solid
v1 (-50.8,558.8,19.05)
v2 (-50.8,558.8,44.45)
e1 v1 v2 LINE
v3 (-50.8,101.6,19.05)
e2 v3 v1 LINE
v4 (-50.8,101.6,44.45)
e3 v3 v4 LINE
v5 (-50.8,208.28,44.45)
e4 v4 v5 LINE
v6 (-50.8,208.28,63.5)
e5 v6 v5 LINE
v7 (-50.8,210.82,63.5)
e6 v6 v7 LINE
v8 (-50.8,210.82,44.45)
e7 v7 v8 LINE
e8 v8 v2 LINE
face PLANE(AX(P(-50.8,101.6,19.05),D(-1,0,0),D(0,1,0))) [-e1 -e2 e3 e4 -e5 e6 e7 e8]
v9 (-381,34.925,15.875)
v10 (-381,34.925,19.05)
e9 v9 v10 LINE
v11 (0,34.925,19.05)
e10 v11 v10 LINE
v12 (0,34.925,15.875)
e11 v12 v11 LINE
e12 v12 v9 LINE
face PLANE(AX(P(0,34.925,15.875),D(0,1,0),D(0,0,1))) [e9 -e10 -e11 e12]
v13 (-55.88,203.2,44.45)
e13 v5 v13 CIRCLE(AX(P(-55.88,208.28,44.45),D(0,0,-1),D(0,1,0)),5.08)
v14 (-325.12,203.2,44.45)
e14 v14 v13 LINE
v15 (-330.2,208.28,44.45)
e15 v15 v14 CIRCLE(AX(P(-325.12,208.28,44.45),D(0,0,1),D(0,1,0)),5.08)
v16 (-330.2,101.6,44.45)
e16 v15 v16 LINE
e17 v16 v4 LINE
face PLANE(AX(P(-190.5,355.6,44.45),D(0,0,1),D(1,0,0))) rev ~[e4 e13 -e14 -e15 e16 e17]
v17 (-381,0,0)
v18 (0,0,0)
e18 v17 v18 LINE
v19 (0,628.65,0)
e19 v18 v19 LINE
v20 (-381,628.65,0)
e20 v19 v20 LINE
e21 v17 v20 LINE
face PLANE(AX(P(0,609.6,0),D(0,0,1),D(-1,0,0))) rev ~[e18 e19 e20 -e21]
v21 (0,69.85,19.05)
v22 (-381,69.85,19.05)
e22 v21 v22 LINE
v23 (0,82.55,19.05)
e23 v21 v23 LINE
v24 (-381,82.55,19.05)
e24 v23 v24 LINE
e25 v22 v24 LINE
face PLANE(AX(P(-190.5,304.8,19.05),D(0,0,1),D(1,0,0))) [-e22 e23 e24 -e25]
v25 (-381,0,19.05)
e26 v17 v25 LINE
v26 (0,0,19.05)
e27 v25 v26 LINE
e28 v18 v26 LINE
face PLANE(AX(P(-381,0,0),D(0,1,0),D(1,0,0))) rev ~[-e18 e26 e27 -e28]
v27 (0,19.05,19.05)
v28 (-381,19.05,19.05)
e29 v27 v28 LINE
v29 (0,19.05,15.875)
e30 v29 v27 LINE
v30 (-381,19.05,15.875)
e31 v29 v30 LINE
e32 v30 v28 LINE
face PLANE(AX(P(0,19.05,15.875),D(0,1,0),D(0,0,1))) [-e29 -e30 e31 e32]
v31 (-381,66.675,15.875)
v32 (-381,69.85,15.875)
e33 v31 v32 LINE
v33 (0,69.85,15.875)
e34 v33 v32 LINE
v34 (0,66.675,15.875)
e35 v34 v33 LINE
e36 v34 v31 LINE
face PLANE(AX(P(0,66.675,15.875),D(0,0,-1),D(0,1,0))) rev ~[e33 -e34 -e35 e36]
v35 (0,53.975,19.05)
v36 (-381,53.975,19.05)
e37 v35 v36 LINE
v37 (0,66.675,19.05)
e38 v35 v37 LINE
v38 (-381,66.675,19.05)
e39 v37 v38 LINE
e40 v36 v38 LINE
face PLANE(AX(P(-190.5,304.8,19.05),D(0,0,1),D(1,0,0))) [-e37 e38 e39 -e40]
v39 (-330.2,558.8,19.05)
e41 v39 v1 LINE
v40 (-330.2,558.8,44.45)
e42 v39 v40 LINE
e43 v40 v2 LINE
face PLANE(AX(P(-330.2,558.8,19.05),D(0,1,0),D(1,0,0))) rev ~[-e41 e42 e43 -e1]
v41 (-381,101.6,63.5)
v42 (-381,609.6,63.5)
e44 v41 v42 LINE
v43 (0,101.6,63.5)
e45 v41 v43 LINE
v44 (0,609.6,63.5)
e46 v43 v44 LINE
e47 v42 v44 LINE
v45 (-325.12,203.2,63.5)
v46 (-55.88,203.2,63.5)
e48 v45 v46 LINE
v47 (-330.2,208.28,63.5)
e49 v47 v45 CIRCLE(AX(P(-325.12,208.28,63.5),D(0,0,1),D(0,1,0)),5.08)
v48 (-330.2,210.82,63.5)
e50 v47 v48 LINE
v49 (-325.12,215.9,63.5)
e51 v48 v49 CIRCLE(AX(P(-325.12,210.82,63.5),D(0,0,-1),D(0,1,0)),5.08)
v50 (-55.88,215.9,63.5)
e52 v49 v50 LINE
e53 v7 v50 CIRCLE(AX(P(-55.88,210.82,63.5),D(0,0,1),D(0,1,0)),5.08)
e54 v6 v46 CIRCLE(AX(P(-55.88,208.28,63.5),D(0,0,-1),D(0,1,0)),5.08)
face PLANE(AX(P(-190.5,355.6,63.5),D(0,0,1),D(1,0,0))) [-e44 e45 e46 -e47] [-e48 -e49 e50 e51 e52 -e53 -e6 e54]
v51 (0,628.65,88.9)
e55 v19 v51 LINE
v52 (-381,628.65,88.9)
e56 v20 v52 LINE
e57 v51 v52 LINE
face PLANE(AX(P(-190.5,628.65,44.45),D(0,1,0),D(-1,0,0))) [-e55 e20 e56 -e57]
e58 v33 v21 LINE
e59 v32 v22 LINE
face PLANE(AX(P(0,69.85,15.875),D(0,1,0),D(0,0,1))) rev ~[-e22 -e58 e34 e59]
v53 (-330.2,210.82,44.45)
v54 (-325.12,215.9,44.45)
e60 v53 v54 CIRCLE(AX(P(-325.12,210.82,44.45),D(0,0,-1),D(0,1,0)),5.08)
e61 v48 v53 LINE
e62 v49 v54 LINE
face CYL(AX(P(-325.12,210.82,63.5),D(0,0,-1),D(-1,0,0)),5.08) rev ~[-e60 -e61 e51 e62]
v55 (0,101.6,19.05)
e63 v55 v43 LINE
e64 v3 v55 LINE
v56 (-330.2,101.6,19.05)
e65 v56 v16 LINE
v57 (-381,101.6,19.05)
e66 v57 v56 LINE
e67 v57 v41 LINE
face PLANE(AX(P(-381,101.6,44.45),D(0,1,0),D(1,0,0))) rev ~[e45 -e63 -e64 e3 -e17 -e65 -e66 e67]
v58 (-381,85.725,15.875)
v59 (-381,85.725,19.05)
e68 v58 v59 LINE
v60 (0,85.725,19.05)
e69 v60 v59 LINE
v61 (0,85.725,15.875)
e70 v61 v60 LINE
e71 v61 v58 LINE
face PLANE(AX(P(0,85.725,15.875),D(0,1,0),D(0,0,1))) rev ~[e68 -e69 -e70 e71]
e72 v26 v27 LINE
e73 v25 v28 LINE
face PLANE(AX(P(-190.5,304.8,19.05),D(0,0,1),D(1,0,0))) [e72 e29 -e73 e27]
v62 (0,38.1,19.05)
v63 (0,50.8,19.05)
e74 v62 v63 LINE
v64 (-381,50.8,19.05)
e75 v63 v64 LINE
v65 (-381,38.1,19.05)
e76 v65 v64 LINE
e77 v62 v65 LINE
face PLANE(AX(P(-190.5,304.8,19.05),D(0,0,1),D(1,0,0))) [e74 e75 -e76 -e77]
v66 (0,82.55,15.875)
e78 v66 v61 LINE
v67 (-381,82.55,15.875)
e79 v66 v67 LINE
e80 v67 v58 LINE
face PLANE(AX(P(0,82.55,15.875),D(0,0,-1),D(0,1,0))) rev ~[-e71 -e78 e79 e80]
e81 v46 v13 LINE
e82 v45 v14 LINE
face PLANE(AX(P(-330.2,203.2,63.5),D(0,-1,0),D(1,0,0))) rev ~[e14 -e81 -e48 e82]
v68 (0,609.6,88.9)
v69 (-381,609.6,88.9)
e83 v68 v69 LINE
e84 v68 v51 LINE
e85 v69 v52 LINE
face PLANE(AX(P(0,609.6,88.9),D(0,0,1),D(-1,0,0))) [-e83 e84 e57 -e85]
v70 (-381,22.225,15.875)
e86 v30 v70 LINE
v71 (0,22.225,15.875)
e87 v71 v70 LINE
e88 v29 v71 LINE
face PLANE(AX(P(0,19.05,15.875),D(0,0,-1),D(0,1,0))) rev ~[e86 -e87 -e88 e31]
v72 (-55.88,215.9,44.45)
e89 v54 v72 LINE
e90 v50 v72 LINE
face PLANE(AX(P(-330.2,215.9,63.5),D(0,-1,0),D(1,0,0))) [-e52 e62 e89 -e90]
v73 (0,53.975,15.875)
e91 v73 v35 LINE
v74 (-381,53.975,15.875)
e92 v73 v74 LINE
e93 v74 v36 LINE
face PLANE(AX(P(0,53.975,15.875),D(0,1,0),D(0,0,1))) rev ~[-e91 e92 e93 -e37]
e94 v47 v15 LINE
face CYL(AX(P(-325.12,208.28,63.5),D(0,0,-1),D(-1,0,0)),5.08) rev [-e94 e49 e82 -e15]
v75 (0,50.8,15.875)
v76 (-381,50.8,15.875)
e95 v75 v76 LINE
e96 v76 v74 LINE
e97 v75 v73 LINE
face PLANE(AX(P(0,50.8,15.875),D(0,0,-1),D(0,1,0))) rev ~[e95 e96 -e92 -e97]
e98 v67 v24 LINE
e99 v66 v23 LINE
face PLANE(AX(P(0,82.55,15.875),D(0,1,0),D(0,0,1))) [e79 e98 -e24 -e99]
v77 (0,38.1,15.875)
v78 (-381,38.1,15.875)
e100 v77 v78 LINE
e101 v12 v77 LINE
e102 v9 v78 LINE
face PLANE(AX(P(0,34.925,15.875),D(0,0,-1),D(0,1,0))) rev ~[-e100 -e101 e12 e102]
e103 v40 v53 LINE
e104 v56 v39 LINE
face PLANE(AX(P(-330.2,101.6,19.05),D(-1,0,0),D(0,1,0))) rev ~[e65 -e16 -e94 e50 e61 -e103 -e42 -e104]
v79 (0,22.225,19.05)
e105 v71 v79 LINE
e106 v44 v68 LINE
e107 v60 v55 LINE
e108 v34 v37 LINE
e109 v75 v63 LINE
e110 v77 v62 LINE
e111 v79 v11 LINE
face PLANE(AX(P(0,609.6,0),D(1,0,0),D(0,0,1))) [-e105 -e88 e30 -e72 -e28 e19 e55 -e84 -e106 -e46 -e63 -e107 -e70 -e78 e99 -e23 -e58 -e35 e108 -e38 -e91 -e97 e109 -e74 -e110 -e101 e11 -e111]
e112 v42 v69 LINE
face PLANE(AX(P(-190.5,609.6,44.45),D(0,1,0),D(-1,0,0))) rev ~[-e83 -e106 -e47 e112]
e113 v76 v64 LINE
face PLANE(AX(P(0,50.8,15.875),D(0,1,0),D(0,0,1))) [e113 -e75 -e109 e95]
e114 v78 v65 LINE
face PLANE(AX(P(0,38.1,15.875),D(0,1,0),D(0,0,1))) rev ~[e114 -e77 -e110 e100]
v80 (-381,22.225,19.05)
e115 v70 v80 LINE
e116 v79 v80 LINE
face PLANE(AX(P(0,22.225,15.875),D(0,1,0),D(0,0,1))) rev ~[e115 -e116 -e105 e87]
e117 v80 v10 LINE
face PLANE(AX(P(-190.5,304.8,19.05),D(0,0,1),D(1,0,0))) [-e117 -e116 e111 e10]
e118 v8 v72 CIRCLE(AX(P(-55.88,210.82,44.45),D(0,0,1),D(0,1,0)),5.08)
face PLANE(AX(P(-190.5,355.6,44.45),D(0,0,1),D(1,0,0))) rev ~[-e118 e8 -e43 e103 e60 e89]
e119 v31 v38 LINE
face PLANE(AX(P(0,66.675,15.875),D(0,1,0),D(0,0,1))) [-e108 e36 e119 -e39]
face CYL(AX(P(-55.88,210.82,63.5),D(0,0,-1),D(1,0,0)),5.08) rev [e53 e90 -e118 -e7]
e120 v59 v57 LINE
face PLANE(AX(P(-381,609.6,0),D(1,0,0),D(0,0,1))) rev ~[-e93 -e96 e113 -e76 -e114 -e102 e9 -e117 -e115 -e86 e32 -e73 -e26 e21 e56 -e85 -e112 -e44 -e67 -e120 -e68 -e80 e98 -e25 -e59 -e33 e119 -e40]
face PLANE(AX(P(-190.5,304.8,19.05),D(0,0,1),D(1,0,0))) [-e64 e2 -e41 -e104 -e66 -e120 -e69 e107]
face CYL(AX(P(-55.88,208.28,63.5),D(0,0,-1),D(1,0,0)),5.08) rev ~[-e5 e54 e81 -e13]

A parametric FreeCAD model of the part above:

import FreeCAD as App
import Part
import Sketcher
Q = App.Units.Quantity


def edges_at(feature, points):
    """Names of the edges that pass closest to the given points."""
    edges = feature.Shape.Edges
    near = lambda p: min(range(len(edges)), key=lambda i: edges[i].distToShape(Part.Vertex(*p))[0])
    return sorted({f"Edge{near(p) + 1}" for p in points})


def add_polygon(sketch, points):
    """Adds a closed chain of lines whose ends are joined by coincident constraints."""
    first, n = sketch.GeometryCount, len(points)
    for a, b in zip(points, points[1:] + points[:1]):
        sketch.addGeometry(Part.LineSegment(App.Vector(*a, 0), App.Vector(*b, 0)), False)
    for i in range(n):
        sketch.addConstraint(Sketcher.Constraint("Coincident", first + i, 2, first + (i + 1) % n, 1))

doc = App.newDocument("Part")
body = doc.addObject("PartDesign::Body", "Body")

sketch1 = body.newObject("Sketcher::SketchObject", "Sketch")
sketch1.AttachmentSupport = (doc.getObject("XY_Plane"), [""])
sketch1.MapMode = "FlatFace"
add_polygon(sketch1, [(-381, 609.6), (-381, 0), (0, 0), (0, 609.6)])
sketch1.addConstraint([
    Sketcher.Constraint("Vertical", 0),
    Sketcher.Constraint("Horizontal", 1),
    Sketcher.Constraint("Vertical", 2),
    Sketcher.Constraint("Horizontal", 3),
    Sketcher.Constraint("Coincident", 1, 2, -1, 1),
    Sketcher.Constraint("DistanceX", 1, 1, 1, 2, Q("15 in")),
    Sketcher.Constraint("DistanceY", 0, 2, 0, 1, Q("24 in")),
])
pad1 = body.newObject("PartDesign::Pad", "Pad")
pad1.Profile = sketch1
pad1.Length = Q("0.75 in")

sketch2 = body.newObject("Sketcher::SketchObject", "Sketch001")
sketch2.AttachmentSupport = (doc.getObject("XY_Plane"), [""])
sketch2.MapMode = "FlatFace"
sketch2.AttachmentOffset = App.Placement(App.Vector(0, 0, 0.75 * 25.4), App.Rotation())
add_polygon(sketch2, [(-50.8, 558.8), (-50.8, 101.6), (0, 101.6), (0, 609.6), (-381, 609.6), (-381, 101.6), (-330.2, 101.6), (-330.2, 558.8)])
sketch2.addConstraint([
    Sketcher.Constraint("Vertical", 0),
    Sketcher.Constraint("Horizontal", 1),
    Sketcher.Constraint("Vertical", 2),
    Sketcher.Constraint("Horizontal", 3),
    Sketcher.Constraint("Vertical", 4),
    Sketcher.Constraint("Horizontal", 5),
    Sketcher.Constraint("Vertical", 6),
    Sketcher.Constraint("Horizontal", 7),
    Sketcher.Constraint("PointOnObject", 1, 2, -2),
    Sketcher.Constraint("Horizontal", 1, 2, 4, 2),
    Sketcher.Constraint("Equal", 1, 5),
    Sketcher.Constraint("DistanceX", 1, 1, 1, 2, Q("2 in")),
    Sketcher.Constraint("DistanceX", 3, 2, 3, 1, Q("15 in")),
    Sketcher.Constraint("DistanceY", 0, 2, 0, 1, Q("18 in")),
    Sketcher.Constraint("DistanceY", 2, 1, 2, 2, Q("20 in")),
    Sketcher.Constraint("DistanceY", -1, 1, 0, 2, Q("4 in")),
])
pad2 = body.newObject("PartDesign::Pad", "Pad001")
pad2.Profile = sketch2
pad2.Length = Q("1 in")

sketch3 = body.newObject("Sketcher::SketchObject", "Sketch002")
sketch3.AttachmentSupport = (doc.getObject("XY_Plane"), [""])
sketch3.MapMode = "FlatFace"
sketch3.AttachmentOffset = App.Placement(App.Vector(0, 0, 1.75 * 25.4), App.Rotation())
add_polygon(sketch3, [(-381, 609.6), (-381, 101.6), (0, 101.6), (0, 609.6)])
sketch3.addConstraint([
    Sketcher.Constraint("Vertical", 0),
    Sketcher.Constraint("Horizontal", 1),
    Sketcher.Constraint("Vertical", 2),
    Sketcher.Constraint("Horizontal", 3),
    Sketcher.Constraint("PointOnObject", 1, 2, -2),
    Sketcher.Constraint("DistanceX", 1, 1, 1, 2, Q("15 in")),
    Sketcher.Constraint("DistanceY", 0, 2, 0, 1, Q("20 in")),
    Sketcher.Constraint("DistanceY", -1, 1, 0, 2, Q("4 in")),
])
pad3 = body.newObject("PartDesign::Pad", "Pad002")
pad3.Profile = sketch3
pad3.Length = Q("0.75 in")

sketch4 = body.newObject("Sketcher::SketchObject", "Sketch003")
sketch4.AttachmentSupport = (doc.getObject("XZ_Plane"), [""])
sketch4.MapMode = "FlatFace"
sketch4.AttachmentOffset = App.Placement(App.Vector(0, 0, -24 * 25.4), App.Rotation())
add_polygon(sketch4, [(0, 88.9), (0, 0), (-381, 0), (-381, 88.9)])
sketch4.addConstraint([
    Sketcher.Constraint("Vertical", 0),
    Sketcher.Constraint("Horizontal", 1),
    Sketcher.Constraint("Vertical", 2),
    Sketcher.Constraint("Horizontal", 3),
    Sketcher.Constraint("Coincident", 0, 2, -1, 1),
    Sketcher.Constraint("DistanceX", 1, 2, 1, 1, Q("15 in")),
    Sketcher.Constraint("DistanceY", 0, 2, 0, 1, Q("3.5 in")),
])
pad4 = body.newObject("PartDesign::Pad", "Pad003")
pad4.Profile = sketch4
pad4.Length = Q("0.75 in")
pad4.Reversed = True

sketch5 = body.newObject("Sketcher::SketchObject", "Sketch004")
sketch5.AttachmentSupport = (doc.getObject("YZ_Plane"), [""])
sketch5.MapMode = "FlatFace"
add_polygon(sketch5, [(19.05, 19.05), (19.05, 15.875), (22.225, 15.875), (22.225, 19.05)])
add_polygon(sketch5, [(34.925, 19.05), (34.925, 15.875), (38.1, 15.875), (38.1, 19.05)])
add_polygon(sketch5, [(50.8, 19.05), (50.8, 15.875), (53.975, 15.875), (53.975, 19.05)])
add_polygon(sketch5, [(66.675, 19.05), (66.675, 15.875), (69.85, 15.875), (69.85, 19.05)])
add_polygon(sketch5, [(82.55, 19.05), (82.55, 15.875), (85.725, 15.875), (85.725, 19.05)])
sketch5.addConstraint([
    Sketcher.Constraint("Vertical", 0),
    Sketcher.Constraint("Horizontal", 1),
    Sketcher.Constraint("Vertical", 2),
    Sketcher.Constraint("Horizontal", 3),
    Sketcher.Constraint("Vertical", 4),
    Sketcher.Constraint("Horizontal", 5),
    Sketcher.Constraint("Vertical", 6),
    Sketcher.Constraint("Horizontal", 7),
    Sketcher.Constraint("Vertical", 8),
    Sketcher.Constraint("Horizontal", 9),
    Sketcher.Constraint("Vertical", 10),
    Sketcher.Constraint("Horizontal", 11),
    Sketcher.Constraint("Vertical", 12),
    Sketcher.Constraint("Horizontal", 13),
    Sketcher.Constraint("Vertical", 14),
    Sketcher.Constraint("Horizontal", 15),
    Sketcher.Constraint("Vertical", 16),
    Sketcher.Constraint("Horizontal", 17),
    Sketcher.Constraint("Vertical", 18),
    Sketcher.Constraint("Horizontal", 19),
    Sketcher.Constraint("Horizontal", 1, 2, 4, 2),
    Sketcher.Constraint("Horizontal", 3, 2, 6, 2),
    Sketcher.Constraint("Horizontal", 5, 2, 8, 2),
    Sketcher.Constraint("Horizontal", 7, 2, 10, 2),
    Sketcher.Constraint("Horizontal", 9, 2, 12, 2),
    Sketcher.Constraint("Horizontal", 11, 2, 14, 2),
    Sketcher.Constraint("Horizontal", 13, 2, 16, 2),
    Sketcher.Constraint("Horizontal", 15, 2, 18, 2),
    Sketcher.Constraint("Equal", 3, 5),
    Sketcher.Constraint("Equal", 7, 9),
    Sketcher.Constraint("Equal", 11, 13),
    Sketcher.Constraint("Equal", 15, 17),
    Sketcher.Constraint("Equal", 19, 0),
    Sketcher.Constraint("DistanceX", -1, 1, 8, 2, Q("2 in")),
    Sketcher.Constraint("DistanceX", -1, 1, 5, 2, Q("1.5 in")),
    Sketcher.Constraint("DistanceX", 1, 2, 4, 2, Q("0.5 in")),
    Sketcher.Constraint("DistanceX", 9, 2, 12, 2, Q("0.5 in")),
    Sketcher.Constraint("DistanceX", 13, 2, 16, 2, Q("0.5 in")),
    Sketcher.Constraint("DistanceX", 1, 1, 1, 2, Q("0.125 in")),
    Sketcher.Constraint("DistanceY", -1, 1, 2, 2, Q("0.75 in")),
])
pocket1 = body.newObject("PartDesign::Pocket", "Pocket")
pocket1.Profile = sketch5
pocket1.Length = Q("15 in")

sketch6 = body.newObject("Sketcher::SketchObject", "Sketch005")
sketch6.AttachmentSupport = (doc.getObject("XY_Plane"), [""])
sketch6.MapMode = "FlatFace"
sketch6.AttachmentOffset = App.Placement(App.Vector(0, 0, 2.5 * 25.4), App.Rotation())
add_polygon(sketch6, [(-330.2, 215.9), (-330.2, 203.2), (-50.8, 203.2), (-50.8, 215.9)])
sketch6.addConstraint([
    Sketcher.Constraint("Vertical", 0),
    Sketcher.Constraint("Horizontal", 1),
    Sketcher.Constraint("Vertical", 2),
    Sketcher.Constraint("Horizontal", 3),
    Sketcher.Constraint("DistanceX", 1, 1, 1, 2, Q("11 in")),
    Sketcher.Constraint("DistanceY", 0, 2, 0, 1, Q("0.5 in")),
    Sketcher.Constraint("DistanceX", 0, 2, -1, 1, Q("13 in")),
    Sketcher.Constraint("DistanceY", -1, 1, 0, 2, Q("8 in")),
])
pocket2 = body.newObject("PartDesign::Pocket", "Pocket001")
pocket2.Profile = sketch6
pocket2.Length = Q("0.75 in")
doc.recompute()

fillet = body.newObject("PartDesign::Fillet", "Fillet")
fillet.Base = (pocket2, edges_at(pocket2, [
    (-330.2, 215.9, 53.975),
    (-330.2, 203.2, 53.975),
    (-50.8, 215.9, 53.975),
    (-50.8, 203.2, 53.975),
]))
fillet.Radius = Q("0.2 in")

doc.recompute()
